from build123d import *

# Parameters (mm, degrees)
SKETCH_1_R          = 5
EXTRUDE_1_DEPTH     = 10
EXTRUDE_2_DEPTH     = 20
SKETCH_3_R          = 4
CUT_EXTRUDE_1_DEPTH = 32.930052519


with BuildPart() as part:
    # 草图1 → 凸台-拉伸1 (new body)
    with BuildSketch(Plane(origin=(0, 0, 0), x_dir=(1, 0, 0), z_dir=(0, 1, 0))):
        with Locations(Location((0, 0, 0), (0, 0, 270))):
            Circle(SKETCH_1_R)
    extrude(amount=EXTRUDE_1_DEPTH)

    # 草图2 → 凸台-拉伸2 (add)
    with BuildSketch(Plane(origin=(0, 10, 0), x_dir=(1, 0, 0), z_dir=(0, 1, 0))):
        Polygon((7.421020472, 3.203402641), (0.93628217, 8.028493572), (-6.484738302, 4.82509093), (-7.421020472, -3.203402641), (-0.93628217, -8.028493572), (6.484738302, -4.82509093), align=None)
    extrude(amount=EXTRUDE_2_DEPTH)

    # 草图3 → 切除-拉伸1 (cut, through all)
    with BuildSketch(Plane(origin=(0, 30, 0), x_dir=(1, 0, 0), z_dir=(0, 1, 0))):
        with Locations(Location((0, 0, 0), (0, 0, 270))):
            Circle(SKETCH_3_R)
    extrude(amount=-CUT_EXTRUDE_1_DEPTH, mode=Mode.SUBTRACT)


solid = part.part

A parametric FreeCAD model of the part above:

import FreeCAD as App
import Part
import Sketcher

V = App.Vector

doc = App.newDocument("Part")
body = doc.addObject("PartDesign::Body", "Body")

# Sketch on XZ plane
sketch1 = body.newObject("Sketcher::SketchObject", "Sketch")
sketch1.AttachmentSupport = (doc.getObject("XZ_Plane"), [""])
sketch1.MapMode = "FlatFace"
sketch1.addGeometry(Part.Circle(V(0, 0, 0), V(0, 0, 1), 5), False)
sketch1.addConstraint(Sketcher.Constraint("Coincident", 0, 3, -1, 1))
sketch1.addConstraint(Sketcher.Constraint("Diameter", 0, 10.0))
pad1 = body.newObject("PartDesign::Pad", "Pad")
pad1.Profile = sketch1
pad1.Length = 10
pad1.Reversed = True

# Sketch on XZ plane
sketch2 = body.newObject("Sketcher::SketchObject", "Sketch001")
sketch2.AttachmentSupport = (doc.getObject("XZ_Plane"), [""])
sketch2.MapMode = "FlatFace"
sketch2.AttachmentOffset = App.Placement(V(0, 0, -10), App.Rotation())
sketch2.addGeometry(Part.LineSegment(V(7.42102, -3.203403, 0), V(0.936282, -8.028494, 0)), False)
sketch2.addGeometry(Part.LineSegment(V(0.936282, -8.028494, 0), V(-6.484738, -4.825091, 0)), False)
sketch2.addGeometry(Part.LineSegment(V(-6.484738, -4.825091, 0), V(-7.42102, 3.203403, 0)), False)
sketch2.addGeometry(Part.LineSegment(V(-7.42102, 3.203403, 0), V(-0.936282, 8.028494, 0)), False)
sketch2.addGeometry(Part.LineSegment(V(-0.936282, 8.028494, 0), V(6.484738, 4.825091, 0)), False)
sketch2.addGeometry(Part.LineSegment(V(6.484738, 4.825091, 0), V(7.42102, -3.203403, 0)), False)
sketch2.addConstraint(Sketcher.Constraint("Coincident", 0, 2, 1, 1))
sketch2.addConstraint(Sketcher.Constraint("Coincident", 1, 2, 2, 1))
sketch2.addConstraint(Sketcher.Constraint("Coincident", 2, 2, 3, 1))
sketch2.addConstraint(Sketcher.Constraint("Coincident", 3, 2, 4, 1))
sketch2.addConstraint(Sketcher.Constraint("Coincident", 4, 2, 5, 1))
sketch2.addConstraint(Sketcher.Constraint("Coincident", 5, 2, 0, 1))
sketch2.addConstraint(Sketcher.Constraint("Symmetric", 0, 2, 3, 2, -1, 1))
sketch2.addConstraint(Sketcher.Constraint("Symmetric", 1, 2, 4, 2, -1, 1))
sketch2.addConstraint(Sketcher.Constraint("Symmetric", 2, 2, 5, 2, -1, 1))
sketch2.addConstraint(Sketcher.Constraint("Equal", 0, 1))
sketch2.addConstraint(Sketcher.Constraint("Equal", 1, 2))
sketch2.addConstraint(Sketcher.Constraint("DistanceX", 1, 2, -1, 1, 6.484738))
sketch2.addConstraint(Sketcher.Constraint("DistanceY", 1, 2, -1, 1, 4.825091))
sketch2.addConstraint(Sketcher.Constraint("DistanceX", 2, 2, -1, 1, 7.42102))
sketch2.addConstraint(Sketcher.Constraint("DistanceX", 1, 2, 0, 2, 7.42102))
pad2 = body.newObject("PartDesign::Pad", "Pad001")
pad2.Profile = sketch2
pad2.Length = 20
pad2.Reversed = True

# Sketch on XZ plane
sketch3 = body.newObject("Sketcher::SketchObject", "Sketch002")
sketch3.AttachmentSupport = (doc.getObject("XZ_Plane"), [""])
sketch3.MapMode = "FlatFace"
sketch3.AttachmentOffset = App.Placement(V(0, 0, -30), App.Rotation())
sketch3.addGeometry(Part.Circle(V(0, 0, 0), V(0, 0, 1), 4), False)
sketch3.addConstraint(Sketcher.Constraint("Coincident", 0, 3, -1, 1))
sketch3.addConstraint(Sketcher.Constraint("Diameter", 0, 8.0))
pocket1 = body.newObject("PartDesign::Pocket", "Pocket")
pocket1.Profile = sketch3
pocket1.Type = "ThroughAll"
pocket1.Reversed = True

doc.recompute()
